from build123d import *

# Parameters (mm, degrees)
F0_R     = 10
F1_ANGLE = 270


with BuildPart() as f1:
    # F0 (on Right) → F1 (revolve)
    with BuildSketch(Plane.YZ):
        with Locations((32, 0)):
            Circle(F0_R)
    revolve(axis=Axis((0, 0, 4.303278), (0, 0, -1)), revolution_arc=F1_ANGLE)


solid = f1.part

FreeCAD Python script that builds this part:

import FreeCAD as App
import Part
import Sketcher
from FreeCAD import Vector

doc = App.newDocument("Part")
body = doc.addObject("PartDesign::Body", "Body")

# Sketch on YZ plane
sketch1 = body.newObject("Sketcher::SketchObject", "Sketch")
sketch1.AttachmentSupport = (doc.getObject("YZ_Plane"), [""])
sketch1.MapMode = "FlatFace"
sketch1.addGeometry(Part.Circle(Vector(32, 0, 0), Vector(0, 0, 1), 10), False)
sketch1.addConstraint(Sketcher.Constraint("PointOnObject", 0, 3, -1))
sketch1.addConstraint(Sketcher.Constraint("Diameter", 0, 20.0))
sketch1.addConstraint(Sketcher.Constraint("DistanceX", -1, 1, 0, 3, 32.0))
revolution = body.newObject("PartDesign::Revolution", "Revolution")
revolution.Profile = sketch1
revolution.ReferenceAxis = (sketch1, ["V_Axis"])
revolution.Angle = 270
revolution.Reversed = True

doc.recompute()
